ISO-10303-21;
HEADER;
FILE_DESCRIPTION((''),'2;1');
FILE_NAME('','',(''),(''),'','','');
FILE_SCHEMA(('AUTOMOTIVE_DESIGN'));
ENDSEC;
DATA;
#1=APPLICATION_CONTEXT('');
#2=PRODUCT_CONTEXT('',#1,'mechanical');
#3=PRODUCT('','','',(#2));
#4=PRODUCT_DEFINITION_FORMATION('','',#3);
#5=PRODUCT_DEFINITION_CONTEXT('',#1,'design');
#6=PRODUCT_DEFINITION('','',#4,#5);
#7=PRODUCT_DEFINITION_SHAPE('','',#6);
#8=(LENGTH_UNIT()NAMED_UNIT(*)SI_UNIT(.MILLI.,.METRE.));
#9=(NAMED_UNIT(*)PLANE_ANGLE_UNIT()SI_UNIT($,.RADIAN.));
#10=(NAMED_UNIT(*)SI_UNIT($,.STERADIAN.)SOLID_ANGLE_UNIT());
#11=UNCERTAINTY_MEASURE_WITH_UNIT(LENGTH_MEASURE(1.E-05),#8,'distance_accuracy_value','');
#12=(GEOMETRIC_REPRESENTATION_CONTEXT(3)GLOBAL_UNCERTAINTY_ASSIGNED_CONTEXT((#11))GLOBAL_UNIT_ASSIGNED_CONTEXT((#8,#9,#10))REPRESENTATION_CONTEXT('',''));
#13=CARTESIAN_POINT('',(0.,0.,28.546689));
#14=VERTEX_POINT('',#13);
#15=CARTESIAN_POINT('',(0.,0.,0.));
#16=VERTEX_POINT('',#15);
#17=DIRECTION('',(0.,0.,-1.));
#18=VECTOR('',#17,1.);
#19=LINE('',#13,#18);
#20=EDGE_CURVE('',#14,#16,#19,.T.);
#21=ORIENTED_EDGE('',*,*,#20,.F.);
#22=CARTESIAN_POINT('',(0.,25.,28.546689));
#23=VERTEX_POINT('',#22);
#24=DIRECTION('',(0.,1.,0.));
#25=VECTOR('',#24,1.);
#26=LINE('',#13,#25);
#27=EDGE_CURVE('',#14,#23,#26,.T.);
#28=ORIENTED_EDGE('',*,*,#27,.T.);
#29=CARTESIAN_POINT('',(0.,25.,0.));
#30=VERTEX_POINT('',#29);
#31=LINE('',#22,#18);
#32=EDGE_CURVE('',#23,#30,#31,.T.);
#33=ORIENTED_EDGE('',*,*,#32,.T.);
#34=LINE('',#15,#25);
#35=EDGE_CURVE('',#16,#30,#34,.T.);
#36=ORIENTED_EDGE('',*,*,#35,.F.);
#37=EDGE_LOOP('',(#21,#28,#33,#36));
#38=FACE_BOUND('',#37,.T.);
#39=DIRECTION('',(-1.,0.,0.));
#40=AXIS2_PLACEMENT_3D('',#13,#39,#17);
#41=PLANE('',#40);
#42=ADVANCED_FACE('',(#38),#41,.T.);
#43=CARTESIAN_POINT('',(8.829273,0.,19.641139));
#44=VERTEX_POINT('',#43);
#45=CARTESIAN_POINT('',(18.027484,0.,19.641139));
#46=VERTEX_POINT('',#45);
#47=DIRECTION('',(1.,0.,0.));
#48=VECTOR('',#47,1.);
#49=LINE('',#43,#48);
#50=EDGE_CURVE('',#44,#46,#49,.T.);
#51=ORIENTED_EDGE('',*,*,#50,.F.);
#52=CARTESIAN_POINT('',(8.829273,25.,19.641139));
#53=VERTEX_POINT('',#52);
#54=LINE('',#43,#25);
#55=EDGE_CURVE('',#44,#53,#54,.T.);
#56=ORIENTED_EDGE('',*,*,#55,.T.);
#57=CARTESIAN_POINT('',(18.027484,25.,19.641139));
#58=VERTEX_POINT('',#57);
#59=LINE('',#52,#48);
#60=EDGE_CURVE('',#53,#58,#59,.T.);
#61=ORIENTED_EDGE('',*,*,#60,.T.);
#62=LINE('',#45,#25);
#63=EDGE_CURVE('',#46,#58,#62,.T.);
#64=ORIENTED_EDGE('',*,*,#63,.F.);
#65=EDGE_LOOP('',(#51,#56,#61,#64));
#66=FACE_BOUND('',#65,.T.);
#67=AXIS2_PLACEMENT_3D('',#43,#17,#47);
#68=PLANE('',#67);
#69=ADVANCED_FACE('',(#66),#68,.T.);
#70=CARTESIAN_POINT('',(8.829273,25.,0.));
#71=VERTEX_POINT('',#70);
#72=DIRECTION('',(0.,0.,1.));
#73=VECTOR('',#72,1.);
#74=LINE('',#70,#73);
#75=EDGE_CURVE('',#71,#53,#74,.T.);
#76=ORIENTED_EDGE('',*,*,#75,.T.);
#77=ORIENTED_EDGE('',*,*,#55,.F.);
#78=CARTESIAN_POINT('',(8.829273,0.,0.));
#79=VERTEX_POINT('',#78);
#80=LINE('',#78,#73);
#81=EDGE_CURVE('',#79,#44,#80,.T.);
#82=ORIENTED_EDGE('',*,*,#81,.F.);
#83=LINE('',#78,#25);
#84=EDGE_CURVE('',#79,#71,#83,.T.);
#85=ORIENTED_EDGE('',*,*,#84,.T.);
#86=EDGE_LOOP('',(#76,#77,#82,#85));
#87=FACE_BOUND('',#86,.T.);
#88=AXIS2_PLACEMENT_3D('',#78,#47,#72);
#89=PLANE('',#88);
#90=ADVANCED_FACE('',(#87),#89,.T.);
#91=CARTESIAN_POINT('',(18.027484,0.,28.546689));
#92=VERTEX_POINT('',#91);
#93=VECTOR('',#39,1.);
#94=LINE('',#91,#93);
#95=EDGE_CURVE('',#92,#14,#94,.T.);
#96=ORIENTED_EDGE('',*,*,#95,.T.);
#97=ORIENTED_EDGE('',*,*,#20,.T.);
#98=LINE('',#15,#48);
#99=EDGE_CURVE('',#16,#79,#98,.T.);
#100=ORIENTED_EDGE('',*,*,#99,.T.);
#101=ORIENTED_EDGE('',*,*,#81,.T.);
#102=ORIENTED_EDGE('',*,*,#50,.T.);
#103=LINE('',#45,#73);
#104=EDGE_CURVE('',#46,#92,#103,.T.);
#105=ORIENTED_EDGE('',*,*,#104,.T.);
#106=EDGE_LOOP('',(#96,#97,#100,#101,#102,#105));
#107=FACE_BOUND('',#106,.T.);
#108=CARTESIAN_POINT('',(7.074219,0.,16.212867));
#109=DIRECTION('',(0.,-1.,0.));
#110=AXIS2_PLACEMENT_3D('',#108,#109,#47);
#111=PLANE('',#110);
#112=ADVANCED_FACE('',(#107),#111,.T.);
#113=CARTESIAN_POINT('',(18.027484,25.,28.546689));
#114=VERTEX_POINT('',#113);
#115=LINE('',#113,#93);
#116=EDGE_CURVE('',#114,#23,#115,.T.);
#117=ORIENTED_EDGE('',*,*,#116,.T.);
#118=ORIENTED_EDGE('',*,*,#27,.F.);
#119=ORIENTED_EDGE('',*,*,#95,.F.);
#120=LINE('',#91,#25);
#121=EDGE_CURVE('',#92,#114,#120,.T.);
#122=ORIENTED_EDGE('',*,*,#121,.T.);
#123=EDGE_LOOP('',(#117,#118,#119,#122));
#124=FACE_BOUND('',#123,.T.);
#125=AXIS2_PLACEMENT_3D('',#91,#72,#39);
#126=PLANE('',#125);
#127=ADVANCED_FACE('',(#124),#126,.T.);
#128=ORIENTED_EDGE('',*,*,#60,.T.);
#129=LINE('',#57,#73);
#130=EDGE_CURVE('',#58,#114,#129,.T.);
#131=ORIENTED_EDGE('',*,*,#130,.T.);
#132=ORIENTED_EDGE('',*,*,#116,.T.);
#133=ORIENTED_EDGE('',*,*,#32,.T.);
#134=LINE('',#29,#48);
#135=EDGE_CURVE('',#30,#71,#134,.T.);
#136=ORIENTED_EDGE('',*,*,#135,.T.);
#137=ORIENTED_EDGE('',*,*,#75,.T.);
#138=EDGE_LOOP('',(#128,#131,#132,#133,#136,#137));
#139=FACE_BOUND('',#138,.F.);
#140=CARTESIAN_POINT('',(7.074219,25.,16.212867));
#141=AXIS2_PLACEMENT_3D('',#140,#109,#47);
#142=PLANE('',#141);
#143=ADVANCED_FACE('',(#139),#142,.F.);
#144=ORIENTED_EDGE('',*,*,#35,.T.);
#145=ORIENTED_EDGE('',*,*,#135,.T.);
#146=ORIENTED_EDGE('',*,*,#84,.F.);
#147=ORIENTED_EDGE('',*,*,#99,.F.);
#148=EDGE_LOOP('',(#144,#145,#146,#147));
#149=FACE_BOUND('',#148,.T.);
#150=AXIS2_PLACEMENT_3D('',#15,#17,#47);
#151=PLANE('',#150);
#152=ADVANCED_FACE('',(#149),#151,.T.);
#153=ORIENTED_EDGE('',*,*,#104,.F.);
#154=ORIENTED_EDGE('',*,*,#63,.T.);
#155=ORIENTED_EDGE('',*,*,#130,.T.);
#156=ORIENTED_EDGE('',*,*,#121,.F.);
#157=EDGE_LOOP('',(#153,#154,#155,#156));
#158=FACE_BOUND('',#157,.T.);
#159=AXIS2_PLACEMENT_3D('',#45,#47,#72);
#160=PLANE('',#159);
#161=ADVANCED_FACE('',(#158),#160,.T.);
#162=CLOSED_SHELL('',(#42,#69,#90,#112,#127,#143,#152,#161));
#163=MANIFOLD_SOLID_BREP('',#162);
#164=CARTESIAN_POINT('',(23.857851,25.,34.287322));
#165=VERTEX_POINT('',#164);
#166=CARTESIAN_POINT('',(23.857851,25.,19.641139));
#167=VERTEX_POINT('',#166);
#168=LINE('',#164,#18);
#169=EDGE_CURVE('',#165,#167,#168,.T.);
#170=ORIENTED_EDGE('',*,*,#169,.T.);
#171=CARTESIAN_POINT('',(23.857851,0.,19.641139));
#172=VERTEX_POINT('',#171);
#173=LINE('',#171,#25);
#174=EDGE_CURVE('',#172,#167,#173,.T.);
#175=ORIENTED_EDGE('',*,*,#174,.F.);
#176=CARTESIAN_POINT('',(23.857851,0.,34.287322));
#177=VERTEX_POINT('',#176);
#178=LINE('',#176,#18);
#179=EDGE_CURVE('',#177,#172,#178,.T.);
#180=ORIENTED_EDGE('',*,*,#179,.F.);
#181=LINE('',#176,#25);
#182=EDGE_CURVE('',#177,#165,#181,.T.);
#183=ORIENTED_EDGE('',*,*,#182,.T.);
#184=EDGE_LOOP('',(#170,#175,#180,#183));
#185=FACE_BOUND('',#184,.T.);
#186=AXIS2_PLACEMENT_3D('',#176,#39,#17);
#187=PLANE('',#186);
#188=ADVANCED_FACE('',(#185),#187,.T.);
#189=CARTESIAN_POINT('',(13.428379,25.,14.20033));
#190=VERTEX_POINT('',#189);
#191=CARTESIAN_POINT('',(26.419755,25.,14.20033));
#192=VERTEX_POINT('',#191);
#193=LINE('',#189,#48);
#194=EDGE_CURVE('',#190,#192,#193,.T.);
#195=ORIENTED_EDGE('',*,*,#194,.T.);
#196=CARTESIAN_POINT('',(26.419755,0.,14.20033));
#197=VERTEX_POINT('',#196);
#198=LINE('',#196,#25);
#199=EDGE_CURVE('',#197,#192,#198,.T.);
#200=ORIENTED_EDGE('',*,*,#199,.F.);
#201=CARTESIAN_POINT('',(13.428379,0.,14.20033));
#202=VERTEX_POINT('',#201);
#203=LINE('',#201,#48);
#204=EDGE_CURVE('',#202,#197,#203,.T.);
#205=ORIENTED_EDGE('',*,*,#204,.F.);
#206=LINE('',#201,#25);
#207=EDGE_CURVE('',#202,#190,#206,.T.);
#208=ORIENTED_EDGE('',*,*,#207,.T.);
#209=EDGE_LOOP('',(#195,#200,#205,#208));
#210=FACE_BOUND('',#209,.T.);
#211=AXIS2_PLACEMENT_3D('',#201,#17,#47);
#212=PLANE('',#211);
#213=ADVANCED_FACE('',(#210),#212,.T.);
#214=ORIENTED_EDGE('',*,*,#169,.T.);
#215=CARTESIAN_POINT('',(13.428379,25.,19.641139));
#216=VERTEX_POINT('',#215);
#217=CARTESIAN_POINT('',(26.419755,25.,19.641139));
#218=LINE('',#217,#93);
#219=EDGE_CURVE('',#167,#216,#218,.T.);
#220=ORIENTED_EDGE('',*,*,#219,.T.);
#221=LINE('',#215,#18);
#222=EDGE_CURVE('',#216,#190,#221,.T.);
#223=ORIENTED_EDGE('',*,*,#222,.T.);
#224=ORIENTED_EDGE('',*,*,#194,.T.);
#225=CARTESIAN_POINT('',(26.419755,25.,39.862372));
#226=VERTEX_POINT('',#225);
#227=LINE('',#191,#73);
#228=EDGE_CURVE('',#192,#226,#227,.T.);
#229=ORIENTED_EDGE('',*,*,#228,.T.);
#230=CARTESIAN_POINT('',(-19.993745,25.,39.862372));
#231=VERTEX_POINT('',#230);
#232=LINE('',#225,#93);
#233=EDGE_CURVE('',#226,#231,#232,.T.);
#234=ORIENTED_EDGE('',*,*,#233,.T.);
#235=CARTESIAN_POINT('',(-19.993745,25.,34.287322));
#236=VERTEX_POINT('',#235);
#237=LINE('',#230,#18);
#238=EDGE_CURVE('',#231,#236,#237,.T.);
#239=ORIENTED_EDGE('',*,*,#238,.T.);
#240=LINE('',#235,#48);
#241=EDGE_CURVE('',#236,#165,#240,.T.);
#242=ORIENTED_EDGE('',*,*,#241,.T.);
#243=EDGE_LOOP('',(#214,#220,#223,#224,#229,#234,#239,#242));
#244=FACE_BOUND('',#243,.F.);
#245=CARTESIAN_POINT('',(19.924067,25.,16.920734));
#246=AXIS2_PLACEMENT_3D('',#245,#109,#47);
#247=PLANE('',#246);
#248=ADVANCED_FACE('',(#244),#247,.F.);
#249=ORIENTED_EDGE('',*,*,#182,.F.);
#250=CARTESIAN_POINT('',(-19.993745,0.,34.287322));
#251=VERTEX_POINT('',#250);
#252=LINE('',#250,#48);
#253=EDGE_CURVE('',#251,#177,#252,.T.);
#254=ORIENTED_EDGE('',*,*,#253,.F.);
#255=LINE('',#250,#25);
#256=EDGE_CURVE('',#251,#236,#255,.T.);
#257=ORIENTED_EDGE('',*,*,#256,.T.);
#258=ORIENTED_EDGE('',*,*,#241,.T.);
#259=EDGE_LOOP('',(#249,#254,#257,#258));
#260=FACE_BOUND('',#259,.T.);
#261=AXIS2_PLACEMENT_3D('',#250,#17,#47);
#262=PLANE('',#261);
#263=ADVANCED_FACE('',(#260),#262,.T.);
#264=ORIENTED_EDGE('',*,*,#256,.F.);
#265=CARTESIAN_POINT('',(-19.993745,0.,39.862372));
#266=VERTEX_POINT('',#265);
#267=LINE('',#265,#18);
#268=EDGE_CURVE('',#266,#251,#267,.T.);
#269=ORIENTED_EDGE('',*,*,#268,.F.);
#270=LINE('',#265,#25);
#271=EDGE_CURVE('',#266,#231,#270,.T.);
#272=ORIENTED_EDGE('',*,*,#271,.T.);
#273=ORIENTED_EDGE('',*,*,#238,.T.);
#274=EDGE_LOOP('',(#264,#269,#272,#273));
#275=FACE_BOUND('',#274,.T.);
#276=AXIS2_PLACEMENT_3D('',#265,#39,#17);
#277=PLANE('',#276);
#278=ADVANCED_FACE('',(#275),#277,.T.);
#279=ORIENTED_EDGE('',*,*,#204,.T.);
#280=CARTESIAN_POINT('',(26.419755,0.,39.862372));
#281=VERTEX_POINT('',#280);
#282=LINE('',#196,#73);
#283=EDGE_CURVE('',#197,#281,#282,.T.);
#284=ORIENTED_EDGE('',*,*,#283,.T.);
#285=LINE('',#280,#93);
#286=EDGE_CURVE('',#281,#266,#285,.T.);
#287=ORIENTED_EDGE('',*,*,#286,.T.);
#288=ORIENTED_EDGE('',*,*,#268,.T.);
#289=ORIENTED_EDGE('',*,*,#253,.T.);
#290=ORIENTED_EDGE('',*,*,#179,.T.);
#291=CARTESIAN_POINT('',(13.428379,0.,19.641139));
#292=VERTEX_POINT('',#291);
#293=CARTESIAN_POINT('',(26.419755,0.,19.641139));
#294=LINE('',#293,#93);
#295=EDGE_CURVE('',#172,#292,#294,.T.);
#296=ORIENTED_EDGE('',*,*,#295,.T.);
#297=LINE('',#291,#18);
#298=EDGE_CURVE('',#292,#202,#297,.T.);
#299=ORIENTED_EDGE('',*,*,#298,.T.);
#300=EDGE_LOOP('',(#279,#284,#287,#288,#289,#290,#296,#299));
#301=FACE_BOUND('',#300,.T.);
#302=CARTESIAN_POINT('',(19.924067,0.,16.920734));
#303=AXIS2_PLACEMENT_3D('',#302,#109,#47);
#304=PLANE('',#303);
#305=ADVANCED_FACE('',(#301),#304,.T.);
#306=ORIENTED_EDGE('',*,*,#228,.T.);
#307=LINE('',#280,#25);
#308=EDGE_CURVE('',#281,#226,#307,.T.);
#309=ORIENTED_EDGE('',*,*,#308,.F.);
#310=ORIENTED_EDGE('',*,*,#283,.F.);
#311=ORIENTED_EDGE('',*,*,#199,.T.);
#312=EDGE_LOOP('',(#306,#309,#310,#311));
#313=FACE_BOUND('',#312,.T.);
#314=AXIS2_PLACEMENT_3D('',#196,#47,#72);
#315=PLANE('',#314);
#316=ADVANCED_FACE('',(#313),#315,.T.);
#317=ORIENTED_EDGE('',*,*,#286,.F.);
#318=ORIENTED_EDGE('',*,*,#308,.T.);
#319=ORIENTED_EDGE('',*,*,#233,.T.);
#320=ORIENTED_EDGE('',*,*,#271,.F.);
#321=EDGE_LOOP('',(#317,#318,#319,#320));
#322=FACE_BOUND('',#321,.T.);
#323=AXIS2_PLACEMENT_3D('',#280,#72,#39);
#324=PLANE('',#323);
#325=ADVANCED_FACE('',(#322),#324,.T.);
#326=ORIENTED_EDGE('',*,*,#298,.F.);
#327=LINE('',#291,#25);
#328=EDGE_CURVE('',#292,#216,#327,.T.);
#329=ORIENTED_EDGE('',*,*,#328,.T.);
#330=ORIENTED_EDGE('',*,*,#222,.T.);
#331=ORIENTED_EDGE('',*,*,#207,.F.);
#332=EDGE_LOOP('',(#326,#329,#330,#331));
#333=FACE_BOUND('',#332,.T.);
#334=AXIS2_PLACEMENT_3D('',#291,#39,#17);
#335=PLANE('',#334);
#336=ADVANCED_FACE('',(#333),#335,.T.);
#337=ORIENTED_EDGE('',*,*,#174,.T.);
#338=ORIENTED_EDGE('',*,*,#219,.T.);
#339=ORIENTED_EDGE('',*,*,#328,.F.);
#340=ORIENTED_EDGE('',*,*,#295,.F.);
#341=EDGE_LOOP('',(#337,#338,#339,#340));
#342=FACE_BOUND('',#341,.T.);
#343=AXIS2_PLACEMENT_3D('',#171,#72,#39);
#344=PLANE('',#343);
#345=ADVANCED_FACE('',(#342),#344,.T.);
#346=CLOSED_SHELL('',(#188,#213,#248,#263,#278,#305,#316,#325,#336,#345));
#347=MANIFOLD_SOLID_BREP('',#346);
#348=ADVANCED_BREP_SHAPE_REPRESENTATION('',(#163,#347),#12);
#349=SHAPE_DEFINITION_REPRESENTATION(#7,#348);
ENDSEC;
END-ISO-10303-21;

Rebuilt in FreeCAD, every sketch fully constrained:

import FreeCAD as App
import Part
import Sketcher


def add_polygon(sketch, points):
    """Adds a closed chain of lines whose ends are joined by coincident constraints."""
    first, n = sketch.GeometryCount, len(points)
    for a, b in zip(points, points[1:] + points[:1]):
        sketch.addGeometry(Part.LineSegment(App.Vector(*a, 0), App.Vector(*b, 0)), False)
    for i in range(n):
        sketch.addConstraint(Sketcher.Constraint("Coincident", first + i, 2, first + (i + 1) % n, 1))

doc = App.newDocument("Part")
body = doc.addObject("PartDesign::Body", "Body")

# Sketch on XZ plane
sketch1 = doc.addObject("Sketcher::SketchObject", "Sketch")
body.addObject(sketch1)
sketch1.AttachmentSupport = (doc.XZ_Plane, [""])
sketch1.MapMode = "FlatFace"
add_polygon(sketch1, [(18, 29), (0, 29), (0, 0), (9, 0), (9, 20), (18, 20)])  # lines 0-5
sketch1.addConstraint(Sketcher.Constraint("Horizontal", 0))
sketch1.addConstraint(Sketcher.Constraint("Vertical", 1))
sketch1.addConstraint(Sketcher.Constraint("Horizontal", 2))
sketch1.addConstraint(Sketcher.Constraint("Vertical", 3))
sketch1.addConstraint(Sketcher.Constraint("Horizontal", 4))
sketch1.addConstraint(Sketcher.Constraint("Vertical", 5))
sketch1.addConstraint(Sketcher.Constraint("Coincident", 1, 2, -1, 1))
sketch1.addConstraint(Sketcher.Constraint("DistanceX", 4, 1, 4, 2, 9.198211))
sketch1.addConstraint(Sketcher.Constraint("DistanceY", 1, 2, 1, 1, 28.546689))
sketch1.addConstraint(Sketcher.Constraint("DistanceY", 3, 1, 3, 2, 19.641139))
sketch1.addConstraint(Sketcher.Constraint("DistanceX", 0, 2, 0, 1, 18.027484))
pad1 = doc.addObject("PartDesign::Pad", "Pad")
body.addObject(pad1)
pad1.Profile = sketch1
pad1.Length = 25
pad1.Reversed = True
body2 = doc.addObject("PartDesign::Body", "Body001")

# Sketch on XZ plane
sketch2 = doc.addObject("Sketcher::SketchObject", "Sketch001")
body2.addObject(sketch2)
sketch2.AttachmentSupport = (doc.getObject("XZ_Plane001"), [""])
sketch2.MapMode = "FlatFace"
add_polygon(sketch2, [(13, 20), (13, 14), (26, 14), (26, 40), (-20, 40), (-20, 34), (24, 34), (24, 20)])  # lines 0-7
sketch2.addConstraint(Sketcher.Constraint("Vertical", 0))
sketch2.addConstraint(Sketcher.Constraint("Horizontal", 1))
sketch2.addConstraint(Sketcher.Constraint("Vertical", 2))
sketch2.addConstraint(Sketcher.Constraint("Horizontal", 3))
sketch2.addConstraint(Sketcher.Constraint("Vertical", 4))
sketch2.addConstraint(Sketcher.Constraint("Horizontal", 5))
sketch2.addConstraint(Sketcher.Constraint("Vertical", 6))
sketch2.addConstraint(Sketcher.Constraint("Horizontal", 7))
sketch2.addConstraint(Sketcher.Constraint("DistanceX", 3, 2, 3, 1, 46.4135))
sketch2.addConstraint(Sketcher.Constraint("DistanceY", 0, 2, 0, 1, 5.440809))
sketch2.addConstraint(Sketcher.Constraint("DistanceY", 2, 1, 2, 2, 25.662042))
sketch2.addConstraint(Sketcher.Constraint("DistanceY", 4, 2, 4, 1, 5.57505))
sketch2.addConstraint(Sketcher.Constraint("DistanceX", 1, 1, 1, 2, 12.991376))
sketch2.addConstraint(Sketcher.Constraint("DistanceX", 5, 1, 5, 2, 43.851596))
sketch2.addConstraint(Sketcher.Constraint("DistanceX", -1, 1, 0, 2, 13.428379))
sketch2.addConstraint(Sketcher.Constraint("DistanceY", -1, 1, 0, 2, 14.20033))
pad2 = doc.addObject("PartDesign::Pad", "Pad001")
body2.addObject(pad2)
pad2.Profile = sketch2
pad2.Length = 25
pad2.Reversed = True

doc.recompute()
